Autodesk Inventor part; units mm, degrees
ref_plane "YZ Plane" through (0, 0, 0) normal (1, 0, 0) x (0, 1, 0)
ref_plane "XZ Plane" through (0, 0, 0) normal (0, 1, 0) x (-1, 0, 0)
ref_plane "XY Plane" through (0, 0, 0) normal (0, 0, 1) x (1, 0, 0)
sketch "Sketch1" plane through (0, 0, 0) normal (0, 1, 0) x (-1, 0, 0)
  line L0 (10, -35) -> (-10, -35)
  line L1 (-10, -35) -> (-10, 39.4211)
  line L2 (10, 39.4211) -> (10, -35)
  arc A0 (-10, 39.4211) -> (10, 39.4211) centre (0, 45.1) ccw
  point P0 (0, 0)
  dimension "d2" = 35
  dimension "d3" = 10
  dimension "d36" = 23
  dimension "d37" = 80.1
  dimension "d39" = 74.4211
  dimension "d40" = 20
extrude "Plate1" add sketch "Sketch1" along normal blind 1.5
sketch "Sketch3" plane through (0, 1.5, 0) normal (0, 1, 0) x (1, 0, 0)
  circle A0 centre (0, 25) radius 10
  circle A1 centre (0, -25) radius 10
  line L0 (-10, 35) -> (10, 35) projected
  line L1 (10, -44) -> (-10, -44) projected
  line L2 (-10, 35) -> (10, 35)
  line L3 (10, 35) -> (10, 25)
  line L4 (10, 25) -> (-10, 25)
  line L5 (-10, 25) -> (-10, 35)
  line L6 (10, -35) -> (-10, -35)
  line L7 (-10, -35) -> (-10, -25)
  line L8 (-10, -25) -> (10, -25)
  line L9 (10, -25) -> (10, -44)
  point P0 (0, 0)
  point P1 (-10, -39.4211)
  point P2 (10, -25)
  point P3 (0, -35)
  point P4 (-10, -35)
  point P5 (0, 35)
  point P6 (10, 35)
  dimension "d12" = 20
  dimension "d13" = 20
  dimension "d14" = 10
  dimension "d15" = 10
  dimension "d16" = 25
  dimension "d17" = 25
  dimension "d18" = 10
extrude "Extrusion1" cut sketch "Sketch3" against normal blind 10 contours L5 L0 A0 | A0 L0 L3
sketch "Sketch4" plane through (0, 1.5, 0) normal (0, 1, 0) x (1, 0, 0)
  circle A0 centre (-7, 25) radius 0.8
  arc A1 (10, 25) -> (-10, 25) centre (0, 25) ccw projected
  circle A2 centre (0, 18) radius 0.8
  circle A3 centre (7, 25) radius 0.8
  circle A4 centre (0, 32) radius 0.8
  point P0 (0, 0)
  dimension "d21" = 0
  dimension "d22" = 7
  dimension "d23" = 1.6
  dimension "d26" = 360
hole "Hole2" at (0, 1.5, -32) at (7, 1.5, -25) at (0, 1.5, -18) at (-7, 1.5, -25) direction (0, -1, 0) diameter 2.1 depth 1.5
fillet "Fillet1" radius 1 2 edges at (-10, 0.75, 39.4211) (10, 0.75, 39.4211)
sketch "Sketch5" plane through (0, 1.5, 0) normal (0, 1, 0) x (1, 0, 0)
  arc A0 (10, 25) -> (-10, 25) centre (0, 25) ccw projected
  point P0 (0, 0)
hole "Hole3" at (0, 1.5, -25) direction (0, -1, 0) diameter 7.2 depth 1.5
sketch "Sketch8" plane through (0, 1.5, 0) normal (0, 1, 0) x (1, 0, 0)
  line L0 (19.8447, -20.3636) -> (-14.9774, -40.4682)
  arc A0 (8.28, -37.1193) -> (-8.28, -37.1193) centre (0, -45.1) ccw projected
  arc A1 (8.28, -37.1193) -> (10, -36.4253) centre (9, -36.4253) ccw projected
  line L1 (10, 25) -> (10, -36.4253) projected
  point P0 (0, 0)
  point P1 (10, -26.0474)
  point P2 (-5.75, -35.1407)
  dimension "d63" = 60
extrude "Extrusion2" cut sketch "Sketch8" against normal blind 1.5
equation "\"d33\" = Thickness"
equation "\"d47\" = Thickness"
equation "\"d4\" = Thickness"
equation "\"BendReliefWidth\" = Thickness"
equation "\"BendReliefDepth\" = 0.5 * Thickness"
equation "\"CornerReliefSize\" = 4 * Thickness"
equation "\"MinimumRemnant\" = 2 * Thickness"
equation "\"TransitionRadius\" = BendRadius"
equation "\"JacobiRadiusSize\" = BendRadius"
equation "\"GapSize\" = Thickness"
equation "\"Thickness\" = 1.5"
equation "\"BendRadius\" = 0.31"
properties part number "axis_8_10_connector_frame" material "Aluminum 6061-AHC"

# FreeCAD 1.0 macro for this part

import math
import FreeCAD as App
import Part
import Sketcher
Q = App.Units.Quantity


def edges_at(feature, points):
    """Names of the edges that pass closest to the given points."""
    edges = feature.Shape.Edges
    near = lambda p: min(range(len(edges)), key=lambda i: edges[i].distToShape(Part.Vertex(*p))[0])
    return sorted({f"Edge{near(p) + 1}" for p in points})

doc = App.newDocument("Part")
body = doc.addObject("PartDesign::Body", "Body")

sketch1 = body.newObject("Sketcher::SketchObject", "Sketch")
sketch1.AttachmentSupport = (doc.getObject("XZ_Plane"), [""])
sketch1.MapMode = "FlatFace"
sketch1.addGeometry(Part.LineSegment(App.Vector(10, -35, 0), App.Vector(-10, -35, 0)), False)
sketch1.addGeometry(Part.LineSegment(App.Vector(-10, -35, 0), App.Vector(-10, 39.4211, 0)), False)
sketch1.addGeometry(Part.ArcOfCircle(Part.Circle(App.Vector(0, 45.1, 0), App.Vector(0, 0, 1), 11.499996), math.radians(-150.40819), math.radians(-29.59181)), False)
sketch1.addGeometry(Part.LineSegment(App.Vector(10, 39.4211, 0), App.Vector(10, -35, 0)), False)
sketch1.addConstraint(Sketcher.Constraint("Coincident", 0, 2, 1, 1))
sketch1.addConstraint(Sketcher.Constraint("Coincident", 1, 2, 2, 1))
sketch1.addConstraint(Sketcher.Constraint("Coincident", 2, 2, 3, 1))
sketch1.addConstraint(Sketcher.Constraint("Coincident", 3, 2, 0, 1))
sketch1.addConstraint(Sketcher.Constraint("Horizontal", 0))
sketch1.addConstraint(Sketcher.Constraint("Vertical", 1))
sketch1.addConstraint(Sketcher.Constraint("Vertical", 3))
sketch1.addConstraint(Sketcher.Constraint("Symmetric", 1, 2, 2, 2, -2))
sketch1.addConstraint(Sketcher.Constraint("Radius", 2, 11.5))
sketch1.addConstraint(Sketcher.Constraint("DistanceX", 0, 2, 0, 1, 20.0))
sketch1.addConstraint(Sketcher.Constraint("DistanceY", 0, 2, -1, 1, 35.0))
sketch1.addConstraint(Sketcher.Constraint("DistanceY", 0, 2, 2, 3, 80.1))
pad1 = body.newObject("PartDesign::Pad", "Pad")
pad1.Profile = sketch1
pad1.Length = 1.5
pad1.Reversed = True

sketch2 = body.newObject("Sketcher::SketchObject", "Sketch001")
sketch2.AttachmentSupport = (doc.getObject("XZ_Plane"), [""])
sketch2.MapMode = "FlatFace"
sketch2.AttachmentOffset = App.Placement(App.Vector(0, 0, -1.5), App.Rotation())
sketch2.addGeometry(Part.LineSegment(App.Vector(-10, -35, 0), App.Vector(-10, -25, 0)), False)
sketch2.addGeometry(Part.ArcOfCircle(Part.Circle(App.Vector(0, -25, 0), App.Vector(0, 0, 1), 10), math.radians(180), math.radians(270)), False)
sketch2.addGeometry(Part.LineSegment(App.Vector(0, -35, 0), App.Vector(-10, -35, 0)), False)
sketch2.addGeometry(Part.ArcOfCircle(Part.Circle(App.Vector(0, -25, 0), App.Vector(0, 0, 1), 10), math.radians(-90), math.radians(0)), False)
sketch2.addGeometry(Part.LineSegment(App.Vector(10, -25, 0), App.Vector(10, -35, 0)), False)
sketch2.addGeometry(Part.LineSegment(App.Vector(10, -35, 0), App.Vector(0, -35, 0)), False)
sketch2.addConstraint(Sketcher.Constraint("Tangent", 0, 2, 1, 1))
sketch2.addConstraint(Sketcher.Constraint("Tangent", 1, 2, 2, 1))
sketch2.addConstraint(Sketcher.Constraint("Coincident", 2, 2, 0, 1))
sketch2.addConstraint(Sketcher.Constraint("Tangent", 3, 2, 4, 1))
sketch2.addConstraint(Sketcher.Constraint("Coincident", 4, 2, 5, 1))
sketch2.addConstraint(Sketcher.Constraint("Tangent", 5, 2, 3, 1))
sketch2.addConstraint(Sketcher.Constraint("Vertical", 0))
sketch2.addConstraint(Sketcher.Constraint("Horizontal", 2))
sketch2.addConstraint(Sketcher.Constraint("Vertical", 4))
sketch2.addConstraint(Sketcher.Constraint("Horizontal", 5))
sketch2.addConstraint(Sketcher.Constraint("Coincident", 3, 3, 1, 3))
sketch2.addConstraint(Sketcher.Constraint("Equal", 1, 3))
sketch2.addConstraint(Sketcher.Constraint("PointOnObject", 1, 3, -2))
sketch2.addConstraint(Sketcher.Constraint("Radius", 1, 10.0))
sketch2.addConstraint(Sketcher.Constraint("DistanceY", 1, 3, -1, 1, 25.0))
pocket1 = body.newObject("PartDesign::Pocket", "Pocket")
pocket1.Profile = sketch2
pocket1.Length = 10
pocket1.Reversed = True

sketch3 = body.newObject("Sketcher::SketchObject", "Sketch002")
sketch3.AttachmentSupport = (doc.getObject("XZ_Plane"), [""])
sketch3.MapMode = "FlatFace"
sketch3.AttachmentOffset = App.Placement(App.Vector(0, 0, -1.5), App.Rotation())
sketch3.addGeometry(Part.Circle(App.Vector(0, -32, 0), App.Vector(0, 0, 1), 1.05), False)
sketch3.addGeometry(Part.Circle(App.Vector(7, -25, 0), App.Vector(0, 0, 1), 1.05), False)
sketch3.addGeometry(Part.Circle(App.Vector(0, -18, 0), App.Vector(0, 0, 1), 1.05), False)
sketch3.addGeometry(Part.Circle(App.Vector(-7, -25, 0), App.Vector(0, 0, 1), 1.05), False)
sketch3.addConstraint(Sketcher.Constraint("Equal", 0, 1))
sketch3.addConstraint(Sketcher.Constraint("Equal", 1, 2))
sketch3.addConstraint(Sketcher.Constraint("Equal", 2, 3))
sketch3.addConstraint(Sketcher.Constraint("Symmetric", 1, 3, 3, 3, -2))
sketch3.addConstraint(Sketcher.Constraint("PointOnObject", 0, 3, -2))
sketch3.addConstraint(Sketcher.Constraint("PointOnObject", 2, 3, -2))
sketch3.addConstraint(Sketcher.Constraint("Diameter", 0, 2.1))
sketch3.addConstraint(Sketcher.Constraint("DistanceY", 0, 3, -1, 1, 32.0))
sketch3.addConstraint(Sketcher.Constraint("DistanceX", -1, 1, 1, 3, 7.0))
sketch3.addConstraint(Sketcher.Constraint("DistanceY", 1, 3, -1, 1, 25.0))
sketch3.addConstraint(Sketcher.Constraint("DistanceY", 2, 3, -1, 1, 18.0))
doc.recompute()
hole = body.newObject("PartDesign::Hole", "Hole")
hole.Profile = sketch3
hole.ThreadType = "None"
hole.Diameter = 2.1
hole.DepthType = "Dimension"
hole.Depth = 1.5
hole.DrillPoint = "Flat"
hole.Reversed = True
doc.recompute()

fillet = body.newObject("PartDesign::Fillet", "Fillet")
fillet.Base = (hole, edges_at(hole, [(-10, 0.75, 39.421), (10, 0.75, 39.421)]))
fillet.Radius = 1

sketch4 = body.newObject("Sketcher::SketchObject", "Sketch003")
sketch4.AttachmentSupport = (doc.getObject("XZ_Plane"), [""])
sketch4.MapMode = "FlatFace"
sketch4.AttachmentOffset = App.Placement(App.Vector(0, 0, -1.5), App.Rotation())
sketch4.addGeometry(Part.Circle(App.Vector(0, -25, 0), App.Vector(0, 0, 1), 3.6), False)
sketch4.addConstraint(Sketcher.Constraint("PointOnObject", 0, 3, -2))
sketch4.addConstraint(Sketcher.Constraint("Diameter", 0, 7.2))
sketch4.addConstraint(Sketcher.Constraint("DistanceY", 0, 3, -1, 1, 25.0))
doc.recompute()
hole2 = body.newObject("PartDesign::Hole", "Hole001")
hole2.Profile = sketch4
hole2.ThreadType = "None"
hole2.Diameter = 7.2
hole2.DepthType = "Dimension"
hole2.Depth = 1.5
hole2.DrillPoint = "Flat"
hole2.Reversed = True

sketch5 = body.newObject("Sketcher::SketchObject", "Sketch004")
sketch5.AttachmentSupport = (doc.getObject("XZ_Plane"), [""])
sketch5.MapMode = "FlatFace"
sketch5.AttachmentOffset = App.Placement(App.Vector(0, 0, -1.5), App.Rotation())
sketch5.addGeometry(Part.LineSegment(App.Vector(10, 36.4253, 0), App.Vector(10, 26.047455, 0)), False)
sketch5.addGeometry(Part.LineSegment(App.Vector(10, 26.047455, 0), App.Vector(-5.749995, 35.140742, 0)), False)
sketch5.addGeometry(Part.ArcOfCircle(Part.Circle(App.Vector(0, 45.1, 0), App.Vector(0, 0, 1), 11.499999), math.radians(-120.000063), math.radians(-43.945513)), False)
sketch5.addGeometry(Part.ArcOfCircle(Part.Circle(App.Vector(9, 36.4253, 0), App.Vector(0, 0, 1), 1.000018), math.radians(0), math.radians(136.05341)), False)
sketch5.addConstraint(Sketcher.Constraint("Coincident", 0, 2, 1, 1))
sketch5.addConstraint(Sketcher.Constraint("Tangent", 1, 2, 2, 1))
sketch5.addConstraint(Sketcher.Constraint("Tangent", 2, 2, 3, 2))
sketch5.addConstraint(Sketcher.Constraint("Tangent", 3, 1, 0, 1))
sketch5.addConstraint(Sketcher.Constraint("Vertical", 0))
sketch5.addConstraint(Sketcher.Constraint("PointOnObject", 2, 3, -2))
sketch5.addConstraint(Sketcher.Constraint("Radius", 3, 1.0))
sketch5.addConstraint(Sketcher.Constraint("Radius", 2, 11.5))
sketch5.addConstraint(Sketcher.Constraint("Angle", 1, Q("150 deg")))
sketch5.addConstraint(Sketcher.Constraint("DistanceX", -1, 1, 3, 3, 9.0))
sketch5.addConstraint(Sketcher.Constraint("DistanceY", -1, 1, 2, 3, 45.1))
pocket2 = body.newObject("PartDesign::Pocket", "Pocket001")
pocket2.Profile = sketch5
pocket2.Length = 1.5
pocket2.Reversed = True

doc.recompute()
